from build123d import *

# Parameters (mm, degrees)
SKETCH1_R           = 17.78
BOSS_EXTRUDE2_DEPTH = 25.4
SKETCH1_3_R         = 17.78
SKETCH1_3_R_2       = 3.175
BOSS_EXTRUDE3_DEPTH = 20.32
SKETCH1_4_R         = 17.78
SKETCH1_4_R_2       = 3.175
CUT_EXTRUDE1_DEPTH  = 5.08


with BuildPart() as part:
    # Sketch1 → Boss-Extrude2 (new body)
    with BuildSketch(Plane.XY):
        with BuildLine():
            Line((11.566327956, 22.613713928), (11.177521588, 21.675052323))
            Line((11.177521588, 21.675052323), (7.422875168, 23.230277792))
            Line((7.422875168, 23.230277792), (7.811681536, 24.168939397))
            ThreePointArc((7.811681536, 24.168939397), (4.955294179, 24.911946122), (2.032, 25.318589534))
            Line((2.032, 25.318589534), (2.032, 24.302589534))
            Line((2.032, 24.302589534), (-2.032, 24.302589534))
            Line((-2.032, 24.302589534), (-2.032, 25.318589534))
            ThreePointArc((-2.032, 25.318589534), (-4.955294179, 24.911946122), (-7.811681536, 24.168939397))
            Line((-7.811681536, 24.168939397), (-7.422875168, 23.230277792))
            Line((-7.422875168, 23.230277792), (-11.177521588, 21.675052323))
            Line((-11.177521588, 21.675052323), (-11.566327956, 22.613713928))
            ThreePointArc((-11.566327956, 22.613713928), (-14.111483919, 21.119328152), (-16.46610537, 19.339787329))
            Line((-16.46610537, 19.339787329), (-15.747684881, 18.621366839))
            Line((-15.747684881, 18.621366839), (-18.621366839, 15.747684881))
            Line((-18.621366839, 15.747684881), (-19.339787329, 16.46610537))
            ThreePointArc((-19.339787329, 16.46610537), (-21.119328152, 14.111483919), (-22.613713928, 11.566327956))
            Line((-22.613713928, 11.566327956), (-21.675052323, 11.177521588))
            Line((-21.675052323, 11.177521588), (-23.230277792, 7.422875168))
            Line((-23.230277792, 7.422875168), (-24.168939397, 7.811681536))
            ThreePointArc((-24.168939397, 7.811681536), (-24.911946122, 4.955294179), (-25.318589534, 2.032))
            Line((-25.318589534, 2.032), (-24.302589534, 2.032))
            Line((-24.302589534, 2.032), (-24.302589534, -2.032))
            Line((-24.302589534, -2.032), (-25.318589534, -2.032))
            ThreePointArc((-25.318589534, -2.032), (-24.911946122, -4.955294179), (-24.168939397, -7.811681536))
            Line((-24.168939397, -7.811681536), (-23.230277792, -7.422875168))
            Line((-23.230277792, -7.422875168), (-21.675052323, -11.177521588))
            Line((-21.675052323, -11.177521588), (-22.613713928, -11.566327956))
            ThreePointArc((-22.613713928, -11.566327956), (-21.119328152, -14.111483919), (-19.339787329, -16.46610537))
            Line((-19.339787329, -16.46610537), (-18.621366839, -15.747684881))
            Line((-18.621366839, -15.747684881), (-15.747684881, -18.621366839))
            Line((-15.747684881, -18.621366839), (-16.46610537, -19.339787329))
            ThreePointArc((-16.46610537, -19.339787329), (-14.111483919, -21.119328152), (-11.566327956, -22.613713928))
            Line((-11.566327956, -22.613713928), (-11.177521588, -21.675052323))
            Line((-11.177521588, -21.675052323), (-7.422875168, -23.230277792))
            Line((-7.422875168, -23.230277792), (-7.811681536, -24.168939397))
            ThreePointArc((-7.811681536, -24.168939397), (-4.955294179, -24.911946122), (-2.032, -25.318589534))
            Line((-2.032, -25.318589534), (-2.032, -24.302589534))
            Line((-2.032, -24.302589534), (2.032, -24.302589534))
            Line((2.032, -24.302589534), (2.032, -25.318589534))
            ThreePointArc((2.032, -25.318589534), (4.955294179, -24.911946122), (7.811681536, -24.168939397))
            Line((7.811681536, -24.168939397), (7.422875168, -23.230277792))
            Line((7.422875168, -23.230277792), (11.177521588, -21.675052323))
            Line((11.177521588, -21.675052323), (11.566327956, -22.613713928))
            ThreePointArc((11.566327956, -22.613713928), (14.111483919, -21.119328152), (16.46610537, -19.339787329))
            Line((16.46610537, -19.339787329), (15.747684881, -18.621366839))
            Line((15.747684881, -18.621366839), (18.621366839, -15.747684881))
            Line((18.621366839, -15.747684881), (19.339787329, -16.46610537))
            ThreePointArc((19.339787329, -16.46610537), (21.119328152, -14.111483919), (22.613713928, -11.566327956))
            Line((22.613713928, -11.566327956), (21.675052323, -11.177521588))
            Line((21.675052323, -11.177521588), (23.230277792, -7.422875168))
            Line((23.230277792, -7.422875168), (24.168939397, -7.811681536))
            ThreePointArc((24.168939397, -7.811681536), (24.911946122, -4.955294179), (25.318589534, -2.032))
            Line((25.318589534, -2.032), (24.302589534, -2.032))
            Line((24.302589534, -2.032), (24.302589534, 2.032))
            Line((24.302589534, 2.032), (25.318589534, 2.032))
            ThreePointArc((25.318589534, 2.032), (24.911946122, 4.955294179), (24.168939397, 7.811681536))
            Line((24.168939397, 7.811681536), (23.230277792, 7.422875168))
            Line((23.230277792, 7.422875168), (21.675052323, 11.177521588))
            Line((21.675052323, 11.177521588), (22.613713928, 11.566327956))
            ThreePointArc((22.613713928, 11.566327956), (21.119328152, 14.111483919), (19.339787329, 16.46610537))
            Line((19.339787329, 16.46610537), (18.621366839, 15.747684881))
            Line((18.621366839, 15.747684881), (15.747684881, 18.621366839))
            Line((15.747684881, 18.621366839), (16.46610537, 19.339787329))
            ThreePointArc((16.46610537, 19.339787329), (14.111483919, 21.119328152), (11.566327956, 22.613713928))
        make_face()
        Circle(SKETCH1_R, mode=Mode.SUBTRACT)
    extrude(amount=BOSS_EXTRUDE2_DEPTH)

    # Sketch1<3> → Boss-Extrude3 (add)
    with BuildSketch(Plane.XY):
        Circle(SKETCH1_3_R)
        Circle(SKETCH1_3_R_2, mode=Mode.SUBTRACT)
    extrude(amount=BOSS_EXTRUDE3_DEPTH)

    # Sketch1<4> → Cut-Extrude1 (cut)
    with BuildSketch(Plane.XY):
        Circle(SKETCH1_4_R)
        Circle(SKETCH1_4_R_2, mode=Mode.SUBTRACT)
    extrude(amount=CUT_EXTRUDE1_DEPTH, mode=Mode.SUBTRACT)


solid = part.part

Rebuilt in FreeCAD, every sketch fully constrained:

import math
import FreeCAD as App
import Part
import Sketcher
Q = App.Units.Quantity

doc = App.newDocument("Part")
body = doc.addObject("PartDesign::Body", "Body")

# Sketch on XY plane
sketch1 = doc.addObject("Sketcher::SketchObject", "Sketch")
body.addObject(sketch1)
sketch1.AttachmentSupport = (doc.XY_Plane, [""])
sketch1.MapMode = "FlatFace"
sketch1.addGeometry(Part.LineSegment(App.Vector(11.6, 22.6, 0), App.Vector(11.2, 21.7, 0)), False)
sketch1.addGeometry(Part.LineSegment(App.Vector(11.2, 21.7, 0), App.Vector(7.4, 23.2, 0)), False)
sketch1.addGeometry(Part.LineSegment(App.Vector(7.4, 23.2, 0), App.Vector(7.8, 24.2, 0)), False)
sketch1.addGeometry(Part.ArcOfCircle(Part.Circle(App.Vector(0, 0, 0), App.Vector(0, 0, 1), 25.4), math.radians(72.09), math.radians(85.41)), False)
sketch1.addGeometry(Part.LineSegment(App.Vector(2, 25.3, 0), App.Vector(2, 24.3, 0)), False)
sketch1.addGeometry(Part.LineSegment(App.Vector(2, 24.3, 0), App.Vector(-2, 24.3, 0)), False)
sketch1.addGeometry(Part.LineSegment(App.Vector(-2, 24.3, 0), App.Vector(-2, 25.3, 0)), False)
sketch1.addGeometry(Part.ArcOfCircle(Part.Circle(App.Vector(0, 0, 0), App.Vector(0, 0, 1), 25.4), math.radians(94.59), math.radians(107.91)), False)
sketch1.addGeometry(Part.LineSegment(App.Vector(-7.8, 24.2, 0), App.Vector(-7.4, 23.2, 0)), False)
sketch1.addGeometry(Part.LineSegment(App.Vector(-7.4, 23.2, 0), App.Vector(-11.2, 21.7, 0)), False)
sketch1.addGeometry(Part.LineSegment(App.Vector(-11.2, 21.7, 0), App.Vector(-11.6, 22.6, 0)), False)
sketch1.addGeometry(Part.ArcOfCircle(Part.Circle(App.Vector(0, 0, 0), App.Vector(0, 0, 1), 25.4), math.radians(117.09), math.radians(130.41)), False)
sketch1.addGeometry(Part.LineSegment(App.Vector(-16.5, 19.3, 0), App.Vector(-15.7, 18.6, 0)), False)
sketch1.addGeometry(Part.LineSegment(App.Vector(-15.7, 18.6, 0), App.Vector(-18.6, 15.7, 0)), False)
sketch1.addGeometry(Part.LineSegment(App.Vector(-18.6, 15.7, 0), App.Vector(-19.3, 16.5, 0)), False)
sketch1.addGeometry(Part.ArcOfCircle(Part.Circle(App.Vector(0, 0, 0), App.Vector(0, 0, 1), 25.4), math.radians(139.59), math.radians(152.91)), False)
sketch1.addGeometry(Part.LineSegment(App.Vector(-22.6, 11.6, 0), App.Vector(-21.7, 11.2, 0)), False)
sketch1.addGeometry(Part.LineSegment(App.Vector(-21.7, 11.2, 0), App.Vector(-23.2, 7.4, 0)), False)
sketch1.addGeometry(Part.LineSegment(App.Vector(-23.2, 7.4, 0), App.Vector(-24.2, 7.8, 0)), False)
sketch1.addGeometry(Part.ArcOfCircle(Part.Circle(App.Vector(0, 0, 0), App.Vector(0, 0, 1), 25.4), math.radians(162.09), math.radians(175.41)), False)
sketch1.addGeometry(Part.LineSegment(App.Vector(-25.3, 2, 0), App.Vector(-24.3, 2, 0)), False)
sketch1.addGeometry(Part.LineSegment(App.Vector(-24.3, 2, 0), App.Vector(-24.3, -2, 0)), False)
sketch1.addGeometry(Part.LineSegment(App.Vector(-24.3, -2, 0), App.Vector(-25.3, -2, 0)), False)
sketch1.addGeometry(Part.ArcOfCircle(Part.Circle(App.Vector(0, 0, 0), App.Vector(0, 0, 1), 25.4), math.radians(-175.41), math.radians(-162.09)), False)
sketch1.addGeometry(Part.LineSegment(App.Vector(-24.2, -7.8, 0), App.Vector(-23.2, -7.4, 0)), False)
sketch1.addGeometry(Part.LineSegment(App.Vector(-23.2, -7.4, 0), App.Vector(-21.7, -11.2, 0)), False)
sketch1.addGeometry(Part.LineSegment(App.Vector(-21.7, -11.2, 0), App.Vector(-22.6, -11.6, 0)), False)
sketch1.addGeometry(Part.ArcOfCircle(Part.Circle(App.Vector(0, 0, 0), App.Vector(0, 0, 1), 25.4), math.radians(-152.91), math.radians(-139.59)), False)
sketch1.addGeometry(Part.LineSegment(App.Vector(-19.3, -16.5, 0), App.Vector(-18.6, -15.7, 0)), False)
sketch1.addGeometry(Part.LineSegment(App.Vector(-18.6, -15.7, 0), App.Vector(-15.7, -18.6, 0)), False)
sketch1.addGeometry(Part.LineSegment(App.Vector(-15.7, -18.6, 0), App.Vector(-16.5, -19.3, 0)), False)
sketch1.addGeometry(Part.ArcOfCircle(Part.Circle(App.Vector(0, 0, 0), App.Vector(0, 0, 1), 25.4), math.radians(-130.41), math.radians(-117.09)), False)
sketch1.addGeometry(Part.LineSegment(App.Vector(-11.6, -22.6, 0), App.Vector(-11.2, -21.7, 0)), False)
sketch1.addGeometry(Part.LineSegment(App.Vector(-11.2, -21.7, 0), App.Vector(-7.4, -23.2, 0)), False)
sketch1.addGeometry(Part.LineSegment(App.Vector(-7.4, -23.2, 0), App.Vector(-7.8, -24.2, 0)), False)
sketch1.addGeometry(Part.ArcOfCircle(Part.Circle(App.Vector(0, 0, 0), App.Vector(0, 0, 1), 25.4), math.radians(-107.91), math.radians(-94.59)), False)
sketch1.addGeometry(Part.LineSegment(App.Vector(-2, -25.3, 0), App.Vector(-2, -24.3, 0)), False)
sketch1.addGeometry(Part.LineSegment(App.Vector(-2, -24.3, 0), App.Vector(2, -24.3, 0)), False)
sketch1.addGeometry(Part.LineSegment(App.Vector(2, -24.3, 0), App.Vector(2, -25.3, 0)), False)
sketch1.addGeometry(Part.ArcOfCircle(Part.Circle(App.Vector(0, 0, 0), App.Vector(0, 0, 1), 25.4), math.radians(-85.41), math.radians(-72.09)), False)
sketch1.addGeometry(Part.LineSegment(App.Vector(7.8, -24.2, 0), App.Vector(7.4, -23.2, 0)), False)
sketch1.addGeometry(Part.LineSegment(App.Vector(7.4, -23.2, 0), App.Vector(11.2, -21.7, 0)), False)
sketch1.addGeometry(Part.LineSegment(App.Vector(11.2, -21.7, 0), App.Vector(11.6, -22.6, 0)), False)
sketch1.addGeometry(Part.ArcOfCircle(Part.Circle(App.Vector(0, 0, 0), App.Vector(0, 0, 1), 25.4), math.radians(-62.91), math.radians(-49.59)), False)
sketch1.addGeometry(Part.LineSegment(App.Vector(16.5, -19.3, 0), App.Vector(15.7, -18.6, 0)), False)
sketch1.addGeometry(Part.LineSegment(App.Vector(15.7, -18.6, 0), App.Vector(18.6, -15.7, 0)), False)
sketch1.addGeometry(Part.LineSegment(App.Vector(18.6, -15.7, 0), App.Vector(19.3, -16.5, 0)), False)
sketch1.addGeometry(Part.ArcOfCircle(Part.Circle(App.Vector(0, 0, 0), App.Vector(0, 0, 1), 25.4), math.radians(-40.41), math.radians(-27.09)), False)
sketch1.addGeometry(Part.LineSegment(App.Vector(22.6, -11.6, 0), App.Vector(21.7, -11.2, 0)), False)
sketch1.addGeometry(Part.LineSegment(App.Vector(21.7, -11.2, 0), App.Vector(23.2, -7.4, 0)), False)
sketch1.addGeometry(Part.LineSegment(App.Vector(23.2, -7.4, 0), App.Vector(24.2, -7.8, 0)), False)
sketch1.addGeometry(Part.ArcOfCircle(Part.Circle(App.Vector(0, 0, 0), App.Vector(0, 0, 1), 25.4), math.radians(-17.91), math.radians(-4.59)), False)
sketch1.addGeometry(Part.LineSegment(App.Vector(25.3, -2, 0), App.Vector(24.3, -2, 0)), False)
sketch1.addGeometry(Part.LineSegment(App.Vector(24.3, -2, 0), App.Vector(24.3, 2, 0)), False)
sketch1.addGeometry(Part.LineSegment(App.Vector(24.3, 2, 0), App.Vector(25.3, 2, 0)), False)
sketch1.addGeometry(Part.ArcOfCircle(Part.Circle(App.Vector(0, 0, 0), App.Vector(0, 0, 1), 25.4), math.radians(4.59), math.radians(17.91)), False)
sketch1.addGeometry(Part.LineSegment(App.Vector(24.2, 7.8, 0), App.Vector(23.2, 7.4, 0)), False)
sketch1.addGeometry(Part.LineSegment(App.Vector(23.2, 7.4, 0), App.Vector(21.7, 11.2, 0)), False)
sketch1.addGeometry(Part.LineSegment(App.Vector(21.7, 11.2, 0), App.Vector(22.6, 11.6, 0)), False)
sketch1.addGeometry(Part.ArcOfCircle(Part.Circle(App.Vector(0, 0, 0), App.Vector(0, 0, 1), 25.4), math.radians(27.09), math.radians(40.41)), False)
sketch1.addGeometry(Part.LineSegment(App.Vector(19.3, 16.5, 0), App.Vector(18.6, 15.7, 0)), False)
sketch1.addGeometry(Part.LineSegment(App.Vector(18.6, 15.7, 0), App.Vector(15.7, 18.6, 0)), False)
sketch1.addGeometry(Part.LineSegment(App.Vector(15.7, 18.6, 0), App.Vector(16.5, 19.3, 0)), False)
sketch1.addGeometry(Part.ArcOfCircle(Part.Circle(App.Vector(0, 0, 0), App.Vector(0, 0, 1), 25.4), math.radians(49.59), math.radians(62.91)), False)
sketch1.addGeometry(Part.Circle(App.Vector(0, 0, 0), App.Vector(0, 0, 1), 17.8), False)
sketch1.addConstraint(Sketcher.Constraint("Coincident", 0, 2, 1, 1))
sketch1.addConstraint(Sketcher.Constraint("Coincident", 1, 2, 2, 1))
sketch1.addConstraint(Sketcher.Constraint("Coincident", 2, 2, 3, 1))
sketch1.addConstraint(Sketcher.Constraint("Coincident", 3, 2, 4, 1))
sketch1.addConstraint(Sketcher.Constraint("Coincident", 4, 2, 5, 1))
sketch1.addConstraint(Sketcher.Constraint("Coincident", 5, 2, 6, 1))
sketch1.addConstraint(Sketcher.Constraint("Coincident", 6, 2, 7, 1))
sketch1.addConstraint(Sketcher.Constraint("Coincident", 7, 2, 8, 1))
sketch1.addConstraint(Sketcher.Constraint("Coincident", 8, 2, 9, 1))
sketch1.addConstraint(Sketcher.Constraint("Coincident", 9, 2, 10, 1))
sketch1.addConstraint(Sketcher.Constraint("Coincident", 10, 2, 11, 1))
sketch1.addConstraint(Sketcher.Constraint("Coincident", 11, 2, 12, 1))
sketch1.addConstraint(Sketcher.Constraint("Coincident", 12, 2, 13, 1))
sketch1.addConstraint(Sketcher.Constraint("Coincident", 13, 2, 14, 1))
sketch1.addConstraint(Sketcher.Constraint("Coincident", 14, 2, 15, 1))
sketch1.addConstraint(Sketcher.Constraint("Coincident", 15, 2, 16, 1))
sketch1.addConstraint(Sketcher.Constraint("Coincident", 16, 2, 17, 1))
sketch1.addConstraint(Sketcher.Constraint("Coincident", 17, 2, 18, 1))
sketch1.addConstraint(Sketcher.Constraint("Coincident", 18, 2, 19, 1))
sketch1.addConstraint(Sketcher.Constraint("Coincident", 19, 2, 20, 1))
sketch1.addConstraint(Sketcher.Constraint("Coincident", 20, 2, 21, 1))
sketch1.addConstraint(Sketcher.Constraint("Coincident", 21, 2, 22, 1))
sketch1.addConstraint(Sketcher.Constraint("Coincident", 22, 2, 23, 1))
sketch1.addConstraint(Sketcher.Constraint("Coincident", 23, 2, 24, 1))
sketch1.addConstraint(Sketcher.Constraint("Coincident", 24, 2, 25, 1))
sketch1.addConstraint(Sketcher.Constraint("Coincident", 25, 2, 26, 1))
sketch1.addConstraint(Sketcher.Constraint("Coincident", 26, 2, 27, 1))
sketch1.addConstraint(Sketcher.Constraint("Coincident", 27, 2, 28, 1))
sketch1.addConstraint(Sketcher.Constraint("Coincident", 28, 2, 29, 1))
sketch1.addConstraint(Sketcher.Constraint("Coincident", 29, 2, 30, 1))
sketch1.addConstraint(Sketcher.Constraint("Coincident", 30, 2, 31, 1))
sketch1.addConstraint(Sketcher.Constraint("Coincident", 31, 2, 32, 1))
sketch1.addConstraint(Sketcher.Constraint("Coincident", 32, 2, 33, 1))
sketch1.addConstraint(Sketcher.Constraint("Coincident", 33, 2, 34, 1))
sketch1.addConstraint(Sketcher.Constraint("Coincident", 34, 2, 35, 1))
sketch1.addConstraint(Sketcher.Constraint("Coincident", 35, 2, 36, 1))
sketch1.addConstraint(Sketcher.Constraint("Coincident", 36, 2, 37, 1))
sketch1.addConstraint(Sketcher.Constraint("Coincident", 37, 2, 38, 1))
sketch1.addConstraint(Sketcher.Constraint("Coincident", 38, 2, 39, 1))
sketch1.addConstraint(Sketcher.Constraint("Coincident", 39, 2, 40, 1))
sketch1.addConstraint(Sketcher.Constraint("Coincident", 40, 2, 41, 1))
sketch1.addConstraint(Sketcher.Constraint("Coincident", 41, 2, 42, 1))
sketch1.addConstraint(Sketcher.Constraint("Coincident", 42, 2, 43, 1))
sketch1.addConstraint(Sketcher.Constraint("Coincident", 43, 2, 44, 1))
sketch1.addConstraint(Sketcher.Constraint("Coincident", 44, 2, 45, 1))
sketch1.addConstraint(Sketcher.Constraint("Coincident", 45, 2, 46, 1))
sketch1.addConstraint(Sketcher.Constraint("Coincident", 46, 2, 47, 1))
sketch1.addConstraint(Sketcher.Constraint("Coincident", 47, 2, 48, 1))
sketch1.addConstraint(Sketcher.Constraint("Coincident", 48, 2, 49, 1))
sketch1.addConstraint(Sketcher.Constraint("Coincident", 49, 2, 50, 1))
sketch1.addConstraint(Sketcher.Constraint("Coincident", 50, 2, 51, 1))
sketch1.addConstraint(Sketcher.Constraint("Coincident", 51, 2, 52, 1))
sketch1.addConstraint(Sketcher.Constraint("Coincident", 52, 2, 53, 1))
sketch1.addConstraint(Sketcher.Constraint("Coincident", 53, 2, 54, 1))
sketch1.addConstraint(Sketcher.Constraint("Coincident", 54, 2, 55, 1))
sketch1.addConstraint(Sketcher.Constraint("Coincident", 55, 2, 56, 1))
sketch1.addConstraint(Sketcher.Constraint("Coincident", 56, 2, 57, 1))
sketch1.addConstraint(Sketcher.Constraint("Coincident", 57, 2, 58, 1))
sketch1.addConstraint(Sketcher.Constraint("Coincident", 58, 2, 59, 1))
sketch1.addConstraint(Sketcher.Constraint("Coincident", 59, 2, 60, 1))
sketch1.addConstraint(Sketcher.Constraint("Coincident", 60, 2, 61, 1))
sketch1.addConstraint(Sketcher.Constraint("Coincident", 61, 2, 62, 1))
sketch1.addConstraint(Sketcher.Constraint("Coincident", 62, 2, 63, 1))
sketch1.addConstraint(Sketcher.Constraint("Coincident", 63, 2, 0, 1))
sketch1.addConstraint(Sketcher.Constraint("Vertical", 4))
sketch1.addConstraint(Sketcher.Constraint("Horizontal", 5))
sketch1.addConstraint(Sketcher.Constraint("Vertical", 6))
sketch1.addConstraint(Sketcher.Constraint("Horizontal", 20))
sketch1.addConstraint(Sketcher.Constraint("Vertical", 21))
sketch1.addConstraint(Sketcher.Constraint("Horizontal", 22))
sketch1.addConstraint(Sketcher.Constraint("Vertical", 36))
sketch1.addConstraint(Sketcher.Constraint("Horizontal", 37))
sketch1.addConstraint(Sketcher.Constraint("Vertical", 38))
sketch1.addConstraint(Sketcher.Constraint("Horizontal", 52))
sketch1.addConstraint(Sketcher.Constraint("Vertical", 53))
sketch1.addConstraint(Sketcher.Constraint("Horizontal", 54))
sketch1.addConstraint(Sketcher.Constraint("Coincident", 3, 3, -1, 1))
sketch1.addConstraint(Sketcher.Constraint("Coincident", 7, 3, -1, 1))
sketch1.addConstraint(Sketcher.Constraint("Coincident", 11, 3, -1, 1))
sketch1.addConstraint(Sketcher.Constraint("Coincident", 15, 3, -1, 1))
sketch1.addConstraint(Sketcher.Constraint("Coincident", 19, 3, -1, 1))
sketch1.addConstraint(Sketcher.Constraint("Coincident", 23, 3, -1, 1))
sketch1.addConstraint(Sketcher.Constraint("Coincident", 27, 3, -1, 1))
sketch1.addConstraint(Sketcher.Constraint("Coincident", 31, 3, -1, 1))
sketch1.addConstraint(Sketcher.Constraint("Coincident", 35, 3, -1, 1))
sketch1.addConstraint(Sketcher.Constraint("Coincident", 39, 3, -1, 1))
sketch1.addConstraint(Sketcher.Constraint("Coincident", 43, 3, -1, 1))
sketch1.addConstraint(Sketcher.Constraint("Coincident", 47, 3, -1, 1))
sketch1.addConstraint(Sketcher.Constraint("Coincident", 51, 3, -1, 1))
sketch1.addConstraint(Sketcher.Constraint("Coincident", 55, 3, -1, 1))
sketch1.addConstraint(Sketcher.Constraint("Coincident", 59, 3, -1, 1))
sketch1.addConstraint(Sketcher.Constraint("Coincident", 63, 3, -1, 1))
sketch1.addConstraint(Sketcher.Constraint("Coincident", 64, 3, -1, 1))
sketch1.addConstraint(Sketcher.Constraint("Equal", 3, 7))
sketch1.addConstraint(Sketcher.Constraint("Equal", 7, 11))
sketch1.addConstraint(Sketcher.Constraint("Equal", 11, 15))
sketch1.addConstraint(Sketcher.Constraint("Equal", 15, 19))
sketch1.addConstraint(Sketcher.Constraint("Equal", 19, 23))
sketch1.addConstraint(Sketcher.Constraint("Equal", 23, 27))
sketch1.addConstraint(Sketcher.Constraint("Equal", 27, 31))
sketch1.addConstraint(Sketcher.Constraint("Equal", 31, 35))
sketch1.addConstraint(Sketcher.Constraint("Equal", 35, 39))
sketch1.addConstraint(Sketcher.Constraint("Equal", 39, 43))
sketch1.addConstraint(Sketcher.Constraint("Equal", 43, 47))
sketch1.addConstraint(Sketcher.Constraint("Equal", 47, 51))
sketch1.addConstraint(Sketcher.Constraint("Equal", 51, 55))
sketch1.addConstraint(Sketcher.Constraint("Equal", 55, 59))
sketch1.addConstraint(Sketcher.Constraint("Equal", 59, 63))
sketch1.addConstraint(Sketcher.Constraint("Symmetric", 0, 2, 32, 2, -1, 1))
sketch1.addConstraint(Sketcher.Constraint("Symmetric", 1, 2, 33, 2, -1, 1))
sketch1.addConstraint(Sketcher.Constraint("Symmetric", 4, 2, 36, 2, -1, 1))
sketch1.addConstraint(Sketcher.Constraint("Symmetric", 8, 2, 40, 2, -1, 1))
sketch1.addConstraint(Sketcher.Constraint("Symmetric", 9, 2, 41, 2, -1, 1))
sketch1.addConstraint(Sketcher.Constraint("Symmetric", 12, 2, 44, 2, -1, 1))
sketch1.addConstraint(Sketcher.Constraint("Symmetric", 13, 2, 45, 2, -1, 1))
sketch1.addConstraint(Sketcher.Constraint("Symmetric", 16, 2, 48, 2, -1, 1))
sketch1.addConstraint(Sketcher.Constraint("Symmetric", 17, 2, 49, 2, -1, 1))
sketch1.addConstraint(Sketcher.Constraint("Symmetric", 20, 2, 52, 2, -1, 1))
sketch1.addConstraint(Sketcher.Constraint("Symmetric", 24, 2, 56, 2, -1, 1))
sketch1.addConstraint(Sketcher.Constraint("Symmetric", 25, 2, 57, 2, -1, 1))
sketch1.addConstraint(Sketcher.Constraint("Symmetric", 28, 2, 60, 2, -1, 1))
sketch1.addConstraint(Sketcher.Constraint("Symmetric", 29, 2, 61, 2, -1, 1))
sketch1.addConstraint(Sketcher.Constraint("Symmetric", 1, 2, 8, 2, -2))
sketch1.addConstraint(Sketcher.Constraint("Symmetric", 0, 2, 9, 2, -2))
sketch1.addConstraint(Sketcher.Constraint("Symmetric", 29, 2, 44, 2, -2))
sketch1.addConstraint(Sketcher.Constraint("Symmetric", 28, 2, 45, 2, -2))
sketch1.addConstraint(Sketcher.Constraint("Symmetric", 25, 2, 48, 2, -2))
sketch1.addConstraint(Sketcher.Constraint("Symmetric", 24, 2, 49, 2, -2))
sketch1.addConstraint(Sketcher.Constraint("Perpendicular", 0, 1))
sketch1.addConstraint(Sketcher.Constraint("Perpendicular", 1, 2))
sketch1.addConstraint(Sketcher.Constraint("Perpendicular", 8, 9))
sketch1.addConstraint(Sketcher.Constraint("Perpendicular", 9, 10))
sketch1.addConstraint(Sketcher.Constraint("Perpendicular", 12, 13))
sketch1.addConstraint(Sketcher.Constraint("Perpendicular", 13, 14))
sketch1.addConstraint(Sketcher.Constraint("Perpendicular", 2, 16))
sketch1.addConstraint(Sketcher.Constraint("Perpendicular", 16, 17))
sketch1.addConstraint(Sketcher.Constraint("Perpendicular", 17, 18))
sketch1.addConstraint(Sketcher.Constraint("Perpendicular", 10, 24))
sketch1.addConstraint(Sketcher.Constraint("Perpendicular", 25, 26))
sketch1.addConstraint(Sketcher.Constraint("Perpendicular", 14, 28))
sketch1.addConstraint(Sketcher.Constraint("Perpendicular", 28, 29))
sketch1.addConstraint(Sketcher.Constraint("Perpendicular", 29, 30))
sketch1.addConstraint(Sketcher.Constraint("Perpendicular", 18, 32))
sketch1.addConstraint(Sketcher.Constraint("Perpendicular", 33, 34))
sketch1.addConstraint(Sketcher.Constraint("Perpendicular", 26, 40))
sketch1.addConstraint(Sketcher.Constraint("Perpendicular", 41, 42))
sketch1.addConstraint(Sketcher.Constraint("Perpendicular", 30, 44))
sketch1.addConstraint(Sketcher.Constraint("Perpendicular", 45, 46))
sketch1.addConstraint(Sketcher.Constraint("Perpendicular", 34, 48))
sketch1.addConstraint(Sketcher.Constraint("Perpendicular", 49, 50))
sketch1.addConstraint(Sketcher.Constraint("Perpendicular", 42, 56))
sketch1.addConstraint(Sketcher.Constraint("Perpendicular", 57, 58))
sketch1.addConstraint(Sketcher.Constraint("Perpendicular", 46, 60))
sketch1.addConstraint(Sketcher.Constraint("Perpendicular", 61, 62))
sketch1.addConstraint(Sketcher.Constraint("Horizontal", 3, 2, 6, 2))
sketch1.addConstraint(Sketcher.Constraint("Horizontal", 35, 2, 38, 2))
sketch1.addConstraint(Sketcher.Constraint("Horizontal", 22, 2, 51, 2))
sketch1.addConstraint(Sketcher.Constraint("Horizontal", 20, 2, 53, 2))
sketch1.addConstraint(Sketcher.Constraint("Equal", 54, 4))
sketch1.addConstraint(Sketcher.Constraint("Equal", 37, 21))
sketch1.addConstraint(Sketcher.Constraint("Equal", 0, 2))
sketch1.addConstraint(Sketcher.Constraint("Equal", 10, 12))
sketch1.addConstraint(Sketcher.Constraint("Equal", 9, 13))
sketch1.addConstraint(Sketcher.Constraint("Equal", 12, 14))
sketch1.addConstraint(Sketcher.Constraint("Equal", 14, 16))
sketch1.addConstraint(Sketcher.Constraint("Equal", 13, 17))
sketch1.addConstraint(Sketcher.Constraint("Equal", 16, 18))
sketch1.addConstraint(Sketcher.Constraint("Radius", 3, Q("1 in")))
sketch1.addConstraint(Sketcher.Constraint("Diameter", 64, Q("1.4 in")))
sketch1.addConstraint(Sketcher.Constraint("DistanceX", 5, 2, 5, 1, Q("0.16 in")))
sketch1.addConstraint(Sketcher.Constraint("DistanceX", 20, 1, 20, 2, Q("0.04 in")))
sketch1.addConstraint(Sketcher.Constraint("Angle", 0, Q("-112.5 deg")))
sketch1.addConstraint(Sketcher.Constraint("Distance", 0, Q("0.04 in")))
sketch1.addConstraint(Sketcher.Constraint("Distance", 1, Q("0.16 in")))
pad1 = doc.addObject("PartDesign::Pad", "Pad")
body.addObject(pad1)
pad1.Profile = sketch1
pad1.Length = Q("1 in")

# Sketch on XY plane
sketch2 = doc.addObject("Sketcher::SketchObject", "Sketch001")
body.addObject(sketch2)
sketch2.AttachmentSupport = (doc.XY_Plane, [""])
sketch2.MapMode = "FlatFace"
sketch2.addGeometry(Part.Circle(App.Vector(0, 0, 0), App.Vector(0, 0, 1), 17.8), False)
sketch2.addGeometry(Part.Circle(App.Vector(0, 0, 0), App.Vector(0, 0, 1), 3.2), False)
sketch2.addConstraint(Sketcher.Constraint("Coincident", 0, 3, -1, 1))
sketch2.addConstraint(Sketcher.Constraint("Coincident", 1, 3, -1, 1))
sketch2.addConstraint(Sketcher.Constraint("Diameter", 0, Q("1.4 in")))
sketch2.addConstraint(Sketcher.Constraint("Diameter", 1, Q("0.25 in")))
pad2 = doc.addObject("PartDesign::Pad", "Pad001")
body.addObject(pad2)
pad2.Profile = sketch2
pad2.Length = Q("0.8 in")

# Sketch on XY plane
sketch3 = doc.addObject("Sketcher::SketchObject", "Sketch002")
body.addObject(sketch3)
sketch3.AttachmentSupport = (doc.XY_Plane, [""])
sketch3.MapMode = "FlatFace"
sketch3.addGeometry(Part.Circle(App.Vector(0, 0, 0), App.Vector(0, 0, 1), 17.8), False)
sketch3.addGeometry(Part.Circle(App.Vector(0, 0, 0), App.Vector(0, 0, 1), 3.2), False)
sketch3.addConstraint(Sketcher.Constraint("Coincident", 0, 3, -1, 1))
sketch3.addConstraint(Sketcher.Constraint("Coincident", 1, 3, -1, 1))
sketch3.addConstraint(Sketcher.Constraint("Diameter", 0, Q("1.4 in")))
sketch3.addConstraint(Sketcher.Constraint("Diameter", 1, Q("0.25 in")))
pocket1 = doc.addObject("PartDesign::Pocket", "Pocket")
body.addObject(pocket1)
pocket1.Profile = sketch3
pocket1.Length = Q("0.2 in")
pocket1.Reversed = True

doc.recompute()
